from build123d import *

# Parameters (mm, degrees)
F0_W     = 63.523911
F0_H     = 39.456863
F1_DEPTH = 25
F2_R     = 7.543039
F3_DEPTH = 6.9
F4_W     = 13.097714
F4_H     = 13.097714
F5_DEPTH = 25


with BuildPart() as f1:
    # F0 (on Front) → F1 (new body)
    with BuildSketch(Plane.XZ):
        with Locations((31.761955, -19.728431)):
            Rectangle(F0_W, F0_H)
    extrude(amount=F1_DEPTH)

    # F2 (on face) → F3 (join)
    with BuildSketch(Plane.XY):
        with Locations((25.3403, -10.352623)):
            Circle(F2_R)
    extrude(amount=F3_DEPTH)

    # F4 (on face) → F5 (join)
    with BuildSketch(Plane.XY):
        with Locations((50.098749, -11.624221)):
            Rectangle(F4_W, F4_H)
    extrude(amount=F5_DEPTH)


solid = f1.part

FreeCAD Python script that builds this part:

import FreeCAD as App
import Part
import Sketcher
from FreeCAD import Vector


def add_polygon(sketch, points):
    """Adds a closed chain of lines whose ends are joined by coincident constraints."""
    first, n = sketch.GeometryCount, len(points)
    for a, b in zip(points, points[1:] + points[:1]):
        sketch.addGeometry(Part.LineSegment(App.Vector(*a, 0), App.Vector(*b, 0)), False)
    for i in range(n):
        sketch.addConstraint(Sketcher.Constraint("Coincident", first + i, 2, first + (i + 1) % n, 1))

doc = App.newDocument("Part")
params = doc.addObject("Spreadsheet::Sheet", "Params")
for row, (alias, value) in enumerate([
    ("pad1_length", "25 mm"),
    ("pad2_length", "6.9 mm"),
    ("pad3_length", "25 mm"),
], start=1):
    params.set(f"A{row}", alias)
    params.set(f"B{row}", "=" + value)
    params.setAlias(f"B{row}", alias)

body = doc.addObject("PartDesign::Body", "Body")

sketch1 = body.newObject("Sketcher::SketchObject", "Sketch")
sketch1.AttachmentSupport = (doc.getObject("XZ_Plane"), [""])
sketch1.MapMode = "FlatFace"
add_polygon(sketch1, [(0, 0), (0, -39.456862), (63.52391, -39.456862), (63.52391, 0)])
sketch1.addConstraint(Sketcher.Constraint("Vertical", 0))
sketch1.addConstraint(Sketcher.Constraint("Horizontal", 1))
sketch1.addConstraint(Sketcher.Constraint("Vertical", 2))
sketch1.addConstraint(Sketcher.Constraint("Horizontal", 3))
sketch1.addConstraint(Sketcher.Constraint("Coincident", 3, 2, -1, 1))
sketch1.addConstraint(Sketcher.Constraint("DistanceX", 1, 1, 1, 2, 63.523911))
sketch1.addConstraint(Sketcher.Constraint("DistanceY", 0, 2, 0, 1, 39.456863))
pad1 = body.newObject("PartDesign::Pad", "Pad")
pad1.Profile = sketch1
pad1.setExpression("Length", "Params.pad1_length")

sketch2 = body.newObject("Sketcher::SketchObject", "Sketch001")
sketch2.AttachmentSupport = (doc.getObject("XY_Plane"), [""])
sketch2.MapMode = "FlatFace"
sketch2.addGeometry(Part.Circle(Vector(25.3403, -10.352623, 0), Vector(0, 0, 1), 7.543039), False)
sketch2.addConstraint(Sketcher.Constraint("Diameter", 0, 15.086078))
sketch2.addConstraint(Sketcher.Constraint("DistanceX", -1, 1, 0, 3, 25.3403))
sketch2.addConstraint(Sketcher.Constraint("DistanceY", 0, 3, -1, 1, 10.352623))
pad2 = body.newObject("PartDesign::Pad", "Pad001")
pad2.Profile = sketch2
pad2.setExpression("Length", "Params.pad2_length")

sketch3 = body.newObject("Sketcher::SketchObject", "Sketch002")
sketch3.AttachmentSupport = (doc.getObject("XY_Plane"), [""])
sketch3.MapMode = "FlatFace"
add_polygon(sketch3, [(43.549892, -5.075364), (43.549892, -18.173078), (56.647606, -18.173078), (56.647606, -5.075364)])
sketch3.addConstraint(Sketcher.Constraint("Vertical", 0))
sketch3.addConstraint(Sketcher.Constraint("Horizontal", 1))
sketch3.addConstraint(Sketcher.Constraint("Vertical", 2))
sketch3.addConstraint(Sketcher.Constraint("Horizontal", 3))
sketch3.addConstraint(Sketcher.Constraint("Equal", 3, 0))
sketch3.addConstraint(Sketcher.Constraint("DistanceX", 1, 1, 1, 2, 13.097714))
sketch3.addConstraint(Sketcher.Constraint("DistanceY", 0, 2, -1, 1, 18.173078))
sketch3.addConstraint(Sketcher.Constraint("DistanceX", -1, 1, 0, 2, 43.549892))
pad3 = body.newObject("PartDesign::Pad", "Pad002")
pad3.Profile = sketch3
pad3.setExpression("Length", "Params.pad3_length")

doc.recompute()
